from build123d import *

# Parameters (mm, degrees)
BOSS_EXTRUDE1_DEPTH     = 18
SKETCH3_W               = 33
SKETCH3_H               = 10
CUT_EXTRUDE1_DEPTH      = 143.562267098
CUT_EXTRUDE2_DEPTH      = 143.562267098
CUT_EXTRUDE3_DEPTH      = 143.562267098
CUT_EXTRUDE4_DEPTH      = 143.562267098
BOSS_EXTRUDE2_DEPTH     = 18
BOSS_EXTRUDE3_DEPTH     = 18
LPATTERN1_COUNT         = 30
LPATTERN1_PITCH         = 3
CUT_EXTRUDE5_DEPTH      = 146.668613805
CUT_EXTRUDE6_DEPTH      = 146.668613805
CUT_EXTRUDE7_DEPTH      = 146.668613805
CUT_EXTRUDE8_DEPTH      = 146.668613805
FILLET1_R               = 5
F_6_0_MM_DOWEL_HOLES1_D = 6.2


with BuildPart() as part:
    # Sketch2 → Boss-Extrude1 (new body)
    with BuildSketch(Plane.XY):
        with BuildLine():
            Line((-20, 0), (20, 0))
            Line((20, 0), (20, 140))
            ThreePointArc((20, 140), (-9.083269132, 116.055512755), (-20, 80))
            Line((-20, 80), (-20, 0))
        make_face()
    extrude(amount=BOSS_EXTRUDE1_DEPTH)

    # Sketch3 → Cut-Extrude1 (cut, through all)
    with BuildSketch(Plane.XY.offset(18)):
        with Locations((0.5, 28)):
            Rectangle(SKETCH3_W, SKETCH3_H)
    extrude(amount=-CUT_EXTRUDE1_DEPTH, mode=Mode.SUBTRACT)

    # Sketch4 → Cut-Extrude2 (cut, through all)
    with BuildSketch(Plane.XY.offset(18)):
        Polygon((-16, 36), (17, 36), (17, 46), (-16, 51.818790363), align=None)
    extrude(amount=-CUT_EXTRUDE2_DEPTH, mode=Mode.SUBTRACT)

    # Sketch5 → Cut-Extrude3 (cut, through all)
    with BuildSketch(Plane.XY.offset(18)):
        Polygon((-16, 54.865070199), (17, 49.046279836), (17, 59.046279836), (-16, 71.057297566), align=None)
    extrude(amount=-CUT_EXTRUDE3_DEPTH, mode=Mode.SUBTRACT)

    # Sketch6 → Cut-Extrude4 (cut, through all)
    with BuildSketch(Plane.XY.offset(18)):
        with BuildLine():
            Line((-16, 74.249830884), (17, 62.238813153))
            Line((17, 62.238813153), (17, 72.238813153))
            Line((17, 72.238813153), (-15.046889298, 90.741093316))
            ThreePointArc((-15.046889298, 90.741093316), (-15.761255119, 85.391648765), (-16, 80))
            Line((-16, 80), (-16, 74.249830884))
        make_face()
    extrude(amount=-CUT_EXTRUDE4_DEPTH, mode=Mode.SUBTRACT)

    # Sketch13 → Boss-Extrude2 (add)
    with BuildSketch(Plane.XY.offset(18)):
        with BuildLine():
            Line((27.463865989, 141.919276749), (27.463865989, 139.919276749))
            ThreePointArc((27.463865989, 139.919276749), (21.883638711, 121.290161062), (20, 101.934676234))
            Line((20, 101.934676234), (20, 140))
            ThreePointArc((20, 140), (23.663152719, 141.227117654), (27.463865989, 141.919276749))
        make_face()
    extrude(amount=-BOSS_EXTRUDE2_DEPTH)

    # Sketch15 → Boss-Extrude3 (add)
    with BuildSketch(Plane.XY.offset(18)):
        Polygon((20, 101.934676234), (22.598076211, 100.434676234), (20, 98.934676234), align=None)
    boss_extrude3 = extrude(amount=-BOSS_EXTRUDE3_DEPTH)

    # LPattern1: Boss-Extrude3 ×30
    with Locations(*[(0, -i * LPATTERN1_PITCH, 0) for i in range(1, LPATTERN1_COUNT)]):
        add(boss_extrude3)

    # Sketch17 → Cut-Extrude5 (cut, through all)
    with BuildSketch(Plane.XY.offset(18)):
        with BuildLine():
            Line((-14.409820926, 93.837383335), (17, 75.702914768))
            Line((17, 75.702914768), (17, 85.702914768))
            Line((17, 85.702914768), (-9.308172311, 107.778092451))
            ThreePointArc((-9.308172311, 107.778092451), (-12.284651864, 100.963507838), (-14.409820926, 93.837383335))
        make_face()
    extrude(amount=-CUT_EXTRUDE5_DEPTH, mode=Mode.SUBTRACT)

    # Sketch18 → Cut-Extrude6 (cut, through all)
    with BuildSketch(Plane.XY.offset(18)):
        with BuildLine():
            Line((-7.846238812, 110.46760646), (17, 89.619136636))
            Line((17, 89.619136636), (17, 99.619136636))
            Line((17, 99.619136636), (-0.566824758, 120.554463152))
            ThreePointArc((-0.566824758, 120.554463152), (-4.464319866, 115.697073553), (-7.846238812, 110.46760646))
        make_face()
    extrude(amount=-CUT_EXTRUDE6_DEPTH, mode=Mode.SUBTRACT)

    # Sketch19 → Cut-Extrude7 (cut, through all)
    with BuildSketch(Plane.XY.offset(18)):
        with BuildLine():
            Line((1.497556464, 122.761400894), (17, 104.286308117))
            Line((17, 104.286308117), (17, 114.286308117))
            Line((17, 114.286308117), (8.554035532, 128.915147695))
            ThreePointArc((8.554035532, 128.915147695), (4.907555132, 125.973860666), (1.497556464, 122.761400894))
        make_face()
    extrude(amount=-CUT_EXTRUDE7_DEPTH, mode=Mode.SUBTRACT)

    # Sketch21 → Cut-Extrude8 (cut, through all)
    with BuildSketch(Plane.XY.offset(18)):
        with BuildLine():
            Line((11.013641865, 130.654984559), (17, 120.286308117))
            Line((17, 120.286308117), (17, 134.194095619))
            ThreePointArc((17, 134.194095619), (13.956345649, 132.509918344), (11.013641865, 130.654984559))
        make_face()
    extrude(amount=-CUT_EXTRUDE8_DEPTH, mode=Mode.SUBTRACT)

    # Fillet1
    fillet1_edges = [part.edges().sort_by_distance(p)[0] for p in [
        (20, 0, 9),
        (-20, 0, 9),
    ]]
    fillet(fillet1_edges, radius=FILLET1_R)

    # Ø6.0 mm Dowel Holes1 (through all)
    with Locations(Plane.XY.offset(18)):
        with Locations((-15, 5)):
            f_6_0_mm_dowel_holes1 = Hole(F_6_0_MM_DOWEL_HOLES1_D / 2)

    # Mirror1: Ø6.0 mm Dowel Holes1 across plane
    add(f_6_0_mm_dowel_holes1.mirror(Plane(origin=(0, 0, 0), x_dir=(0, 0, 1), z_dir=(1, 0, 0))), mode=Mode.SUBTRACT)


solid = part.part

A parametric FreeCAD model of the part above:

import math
import FreeCAD as App
import Part
import Sketcher
Q = App.Units.Quantity


def edges_at(feature, points):
    """Names of the edges that pass closest to the given points."""
    edges = feature.Shape.Edges
    near = lambda p: min(range(len(edges)), key=lambda i: edges[i].distToShape(Part.Vertex(*p))[0])
    return sorted({f"Edge{near(p) + 1}" for p in points})

doc = App.newDocument("Part")
body = doc.addObject("PartDesign::Body", "Body")

# Sketch on XY plane
sketch1 = body.newObject("Sketcher::SketchObject", "Sketch")
sketch1.AttachmentSupport = (doc.getObject("XY_Plane"), [""])
sketch1.MapMode = "FlatFace"
sketch1.addGeometry(Part.LineSegment(App.Vector(-20, 0, 0), App.Vector(20, 0, 0)), False)
sketch1.addGeometry(Part.LineSegment(App.Vector(20, 0, 0), App.Vector(20, 140, 0)), False)
sketch1.addGeometry(Part.ArcOfCircle(Part.Circle(App.Vector(45, 80, 0), App.Vector(0, 0, 1), 65), math.radians(112.619865), math.radians(180)), False)
sketch1.addGeometry(Part.LineSegment(App.Vector(-20, 80, 0), App.Vector(-20, 0, 0)), False)
sketch1.addConstraint(Sketcher.Constraint("Coincident", 0, 2, 1, 1))
sketch1.addConstraint(Sketcher.Constraint("Coincident", 1, 2, 2, 1))
sketch1.addConstraint(Sketcher.Constraint("Tangent", 2, 2, 3, 1))
sketch1.addConstraint(Sketcher.Constraint("Coincident", 3, 2, 0, 1))
sketch1.addConstraint(Sketcher.Constraint("Horizontal", 0))
sketch1.addConstraint(Sketcher.Constraint("Vertical", 1))
sketch1.addConstraint(Sketcher.Constraint("Vertical", 3))
sketch1.addConstraint(Sketcher.Constraint("Symmetric", 0, 2, 3, 2, -1, 1))
sketch1.addConstraint(Sketcher.Constraint("Radius", 2, Q("65 mm")))
sketch1.addConstraint(Sketcher.Constraint("DistanceX", 0, 1, 0, 2, Q("40 mm")))
sketch1.addConstraint(Sketcher.Constraint("DistanceY", 1, 1, 1, 2, Q("140 mm")))
pad1 = body.newObject("PartDesign::Pad", "Pad")
pad1.Profile = sketch1
pad1.Length = 18

# Sketch on XY plane
sketch2 = body.newObject("Sketcher::SketchObject", "Sketch001")
sketch2.AttachmentSupport = (doc.getObject("XY_Plane"), [""])
sketch2.MapMode = "FlatFace"
sketch2.AttachmentOffset = App.Placement(App.Vector(0, 0, 18), App.Rotation())
sketch2.addGeometry(Part.LineSegment(App.Vector(-16, 33, 0), App.Vector(-16, 23, 0)), False)
sketch2.addGeometry(Part.LineSegment(App.Vector(-16, 23, 0), App.Vector(17, 23, 0)), False)
sketch2.addGeometry(Part.LineSegment(App.Vector(17, 23, 0), App.Vector(17, 33, 0)), False)
sketch2.addGeometry(Part.LineSegment(App.Vector(17, 33, 0), App.Vector(-16, 33, 0)), False)
sketch2.addConstraint(Sketcher.Constraint("Coincident", 0, 2, 1, 1))
sketch2.addConstraint(Sketcher.Constraint("Coincident", 1, 2, 2, 1))
sketch2.addConstraint(Sketcher.Constraint("Coincident", 2, 2, 3, 1))
sketch2.addConstraint(Sketcher.Constraint("Coincident", 3, 2, 0, 1))
sketch2.addConstraint(Sketcher.Constraint("Vertical", 0))
sketch2.addConstraint(Sketcher.Constraint("Horizontal", 1))
sketch2.addConstraint(Sketcher.Constraint("Vertical", 2))
sketch2.addConstraint(Sketcher.Constraint("Horizontal", 3))
sketch2.addConstraint(Sketcher.Constraint("DistanceX", 1, 1, 1, 2, Q("33 mm")))
sketch2.addConstraint(Sketcher.Constraint("DistanceY", 0, 2, 0, 1, Q("10 mm")))
sketch2.addConstraint(Sketcher.Constraint("DistanceX", 0, 2, -1, 1, Q("16 mm")))
sketch2.addConstraint(Sketcher.Constraint("DistanceY", -1, 1, 0, 2, Q("23 mm")))
pocket1 = body.newObject("PartDesign::Pocket", "Pocket")
pocket1.Profile = sketch2
pocket1.Type = "ThroughAll"

# Sketch on XY plane
sketch3 = body.newObject("Sketcher::SketchObject", "Sketch002")
sketch3.AttachmentSupport = (doc.getObject("XY_Plane"), [""])
sketch3.MapMode = "FlatFace"
sketch3.AttachmentOffset = App.Placement(App.Vector(0, 0, 18), App.Rotation())
sketch3.addGeometry(Part.LineSegment(App.Vector(-16, 36, 0), App.Vector(17, 36, 0)), False)
sketch3.addGeometry(Part.LineSegment(App.Vector(17, 36, 0), App.Vector(17, 46, 0)), False)
sketch3.addGeometry(Part.LineSegment(App.Vector(17, 46, 0), App.Vector(-16, 51.81879, 0)), False)
sketch3.addGeometry(Part.LineSegment(App.Vector(-16, 51.81879, 0), App.Vector(-16, 36, 0)), False)
sketch3.addConstraint(Sketcher.Constraint("Coincident", 0, 2, 1, 1))
sketch3.addConstraint(Sketcher.Constraint("Coincident", 1, 2, 2, 1))
sketch3.addConstraint(Sketcher.Constraint("Coincident", 2, 2, 3, 1))
sketch3.addConstraint(Sketcher.Constraint("Coincident", 3, 2, 0, 1))
sketch3.addConstraint(Sketcher.Constraint("Horizontal", 0))
sketch3.addConstraint(Sketcher.Constraint("Vertical", 1))
sketch3.addConstraint(Sketcher.Constraint("Vertical", 3))
sketch3.addConstraint(Sketcher.Constraint("DistanceX", 0, 1, 0, 2, Q("33 mm")))
sketch3.addConstraint(Sketcher.Constraint("DistanceY", 1, 1, 1, 2, Q("10 mm")))
sketch3.addConstraint(Sketcher.Constraint("Angle", 2, Q("170 deg")))
sketch3.addConstraint(Sketcher.Constraint("DistanceX", -1, 1, 0, 2, Q("17 mm")))
sketch3.addConstraint(Sketcher.Constraint("DistanceY", -1, 1, 0, 2, Q("36 mm")))
pocket2 = body.newObject("PartDesign::Pocket", "Pocket001")
pocket2.Profile = sketch3
pocket2.Type = "ThroughAll"

# Sketch on XY plane
sketch4 = body.newObject("Sketcher::SketchObject", "Sketch003")
sketch4.AttachmentSupport = (doc.getObject("XY_Plane"), [""])
sketch4.MapMode = "FlatFace"
sketch4.AttachmentOffset = App.Placement(App.Vector(0, 0, 18), App.Rotation())
sketch4.addGeometry(Part.LineSegment(App.Vector(-16, 54.86507, 0), App.Vector(17, 49.04628, 0)), False)
sketch4.addGeometry(Part.LineSegment(App.Vector(17, 49.04628, 0), App.Vector(17, 59.04628, 0)), False)
sketch4.addGeometry(Part.LineSegment(App.Vector(17, 59.04628, 0), App.Vector(-16, 71.057298, 0)), False)
sketch4.addGeometry(Part.LineSegment(App.Vector(-16, 71.057298, 0), App.Vector(-16, 54.86507, 0)), False)
sketch4.addConstraint(Sketcher.Constraint("Coincident", 0, 2, 1, 1))
sketch4.addConstraint(Sketcher.Constraint("Coincident", 1, 2, 2, 1))
sketch4.addConstraint(Sketcher.Constraint("Coincident", 2, 2, 3, 1))
sketch4.addConstraint(Sketcher.Constraint("Coincident", 3, 2, 0, 1))
sketch4.addConstraint(Sketcher.Constraint("Vertical", 1))
sketch4.addConstraint(Sketcher.Constraint("Vertical", 3))
sketch4.addConstraint(Sketcher.Constraint("DistanceY", 1, 1, 1, 2, Q("10 mm")))
sketch4.addConstraint(Sketcher.Constraint("Angle", 0, Q("-10 deg")))
sketch4.addConstraint(Sketcher.Constraint("Angle", 2, Q("160 deg")))
sketch4.addConstraint(Sketcher.Constraint("DistanceX", -1, 1, 0, 2, Q("17 mm")))
sketch4.addConstraint(Sketcher.Constraint("DistanceX", 2, 2, -1, 1, Q("16 mm")))
sketch4.addConstraint(Sketcher.Constraint("DistanceY", -1, 1, 0, 2, Q("49.04628 mm")))
pocket3 = body.newObject("PartDesign::Pocket", "Pocket002")
pocket3.Profile = sketch4
pocket3.Type = "ThroughAll"

# Sketch on XY plane
sketch5 = body.newObject("Sketcher::SketchObject", "Sketch004")
sketch5.AttachmentSupport = (doc.getObject("XY_Plane"), [""])
sketch5.MapMode = "FlatFace"
sketch5.AttachmentOffset = App.Placement(App.Vector(0, 0, 18), App.Rotation())
sketch5.addGeometry(Part.LineSegment(App.Vector(-16, 74.249831, 0), App.Vector(17, 62.238813, 0)), False)
sketch5.addGeometry(Part.LineSegment(App.Vector(17, 62.238813, 0), App.Vector(17, 72.238813, 0)), False)
sketch5.addGeometry(Part.LineSegment(App.Vector(17, 72.238813, 0), App.Vector(-15.046889, 90.741093, 0)), False)
sketch5.addGeometry(Part.ArcOfCircle(Part.Circle(App.Vector(45, 80, 0), App.Vector(0, 0, 1), 61), math.radians(169.858283), math.radians(180)), False)
sketch5.addGeometry(Part.LineSegment(App.Vector(-16, 80, 0), App.Vector(-16, 74.249831, 0)), False)
sketch5.addConstraint(Sketcher.Constraint("Coincident", 0, 2, 1, 1))
sketch5.addConstraint(Sketcher.Constraint("Coincident", 1, 2, 2, 1))
sketch5.addConstraint(Sketcher.Constraint("Coincident", 2, 2, 3, 1))
sketch5.addConstraint(Sketcher.Constraint("Tangent", 3, 2, 4, 1))
sketch5.addConstraint(Sketcher.Constraint("Coincident", 4, 2, 0, 1))
sketch5.addConstraint(Sketcher.Constraint("Vertical", 1))
sketch5.addConstraint(Sketcher.Constraint("Vertical", 4))
sketch5.addConstraint(Sketcher.Constraint("Radius", 3, Q("61 mm")))
sketch5.addConstraint(Sketcher.Constraint("DistanceY", 1, 1, 1, 2, Q("10 mm")))
sketch5.addConstraint(Sketcher.Constraint("Angle", 0, Q("-20 deg")))
sketch5.addConstraint(Sketcher.Constraint("Angle", 2, Q("150 deg")))
sketch5.addConstraint(Sketcher.Constraint("DistanceX", -1, 1, 3, 3, Q("45 mm")))
sketch5.addConstraint(Sketcher.Constraint("DistanceY", -1, 1, 3, 3, Q("80 mm")))
sketch5.addConstraint(Sketcher.Constraint("DistanceX", -1, 1, 0, 2, Q("17 mm")))
sketch5.addConstraint(Sketcher.Constraint("DistanceY", 4, 2, 4, 1, Q("5.750169 mm")))
pocket4 = body.newObject("PartDesign::Pocket", "Pocket003")
pocket4.Profile = sketch5
pocket4.Type = "ThroughAll"

# Sketch on XY plane
sketch6 = body.newObject("Sketcher::SketchObject", "Sketch005")
sketch6.AttachmentSupport = (doc.getObject("XY_Plane"), [""])
sketch6.MapMode = "FlatFace"
sketch6.AttachmentOffset = App.Placement(App.Vector(0, 0, 18), App.Rotation())
sketch6.addGeometry(Part.LineSegment(App.Vector(27.463866, 139.919277, 0), App.Vector(27.463866, 141.919277, 0)), False)
sketch6.addGeometry(Part.ArcOfCircle(Part.Circle(App.Vector(30.392092, 115.05898, 0), App.Vector(0, 0, 1), 27.019438), math.radians(96.221637), math.radians(112.619865)), False)
sketch6.addGeometry(Part.LineSegment(App.Vector(20, 140, 0), App.Vector(20, 101.934676, 0)), False)
sketch6.addGeometry(Part.ArcOfCircle(Part.Circle(App.Vector(120.386259, 101.934676, 0), App.Vector(0, 0, 1), 100.386259), math.radians(157.766352), math.radians(180)), False)
sketch6.addConstraint(Sketcher.Constraint("Coincident", 0, 2, 1, 1))
sketch6.addConstraint(Sketcher.Constraint("Coincident", 1, 2, 2, 1))
sketch6.addConstraint(Sketcher.Constraint("Tangent", 2, 2, 3, 2))
sketch6.addConstraint(Sketcher.Constraint("Coincident", 3, 1, 0, 1))
sketch6.addConstraint(Sketcher.Constraint("Vertical", 0))
sketch6.addConstraint(Sketcher.Constraint("Vertical", 2))
sketch6.addConstraint(Sketcher.Constraint("DistanceY", 0, 1, 0, 2, Q("2 mm")))
sketch6.addConstraint(Sketcher.Constraint("DistanceX", -1, 1, 1, 2, Q("20 mm")))
sketch6.addConstraint(Sketcher.Constraint("DistanceY", -1, 1, 1, 2, Q("140 mm")))
sketch6.addConstraint(Sketcher.Constraint("Radius", 3, Q("100.386259 mm")))
sketch6.addConstraint(Sketcher.Constraint("Radius", 1, Q("27.019438 mm")))
sketch6.addConstraint(Sketcher.Constraint("DistanceY", 3, 3, 0, 2, Q("39.984601 mm")))
sketch6.addConstraint(Sketcher.Constraint("DistanceY", 2, 2, 2, 1, Q("38.065324 mm")))
pad2 = body.newObject("PartDesign::Pad", "Pad001")
pad2.Profile = sketch6
pad2.Length = 18
pad2.Reversed = True

# Sketch on XY plane
sketch7 = body.newObject("Sketcher::SketchObject", "Sketch006")
sketch7.AttachmentSupport = (doc.getObject("XY_Plane"), [""])
sketch7.MapMode = "FlatFace"
sketch7.AttachmentOffset = App.Placement(App.Vector(0, 0, 18), App.Rotation())
sketch7.addGeometry(Part.LineSegment(App.Vector(22.598076, 100.434676, 0), App.Vector(20, 101.934676, 0)), False)
sketch7.addGeometry(Part.LineSegment(App.Vector(20, 101.934676, 0), App.Vector(20, 98.934676, 0)), False)
sketch7.addGeometry(Part.LineSegment(App.Vector(20, 98.934676, 0), App.Vector(22.598076, 100.434676, 0)), False)
sketch7.addConstraint(Sketcher.Constraint("Coincident", 0, 2, 1, 1))
sketch7.addConstraint(Sketcher.Constraint("Coincident", 1, 2, 2, 1))
sketch7.addConstraint(Sketcher.Constraint("Coincident", 2, 2, 0, 1))
sketch7.addConstraint(Sketcher.Constraint("Vertical", 1))
sketch7.addConstraint(Sketcher.Constraint("Equal", 0, 2))
sketch7.addConstraint(Sketcher.Constraint("DistanceY", 1, 2, 1, 1, Q("3 mm")))
sketch7.addConstraint(Sketcher.Constraint("Angle", 0, Q("150 deg")))
sketch7.addConstraint(Sketcher.Constraint("DistanceX", -1, 1, 0, 2, Q("20 mm")))
sketch7.addConstraint(Sketcher.Constraint("DistanceY", -1, 1, 0, 2, Q("101.934676 mm")))
pad3 = body.newObject("PartDesign::Pad", "Pad002")
pad3.Profile = sketch7
pad3.Length = 18
pad3.Reversed = True
doc.recompute()

linearpattern = body.newObject("PartDesign::LinearPattern", "LinearPattern")
linearpattern.Originals = [pad3]
linearpattern.Direction = (doc.getObject("Y_Axis"), [""])
linearpattern.Mode = "offset"
linearpattern.Offset = 3
linearpattern.Occurrences = 30
linearpattern.Reversed = True
body.Tip = linearpattern

# Sketch on XY plane
sketch8 = body.newObject("Sketcher::SketchObject", "Sketch007")
sketch8.AttachmentSupport = (doc.getObject("XY_Plane"), [""])
sketch8.MapMode = "FlatFace"
sketch8.AttachmentOffset = App.Placement(App.Vector(0, 0, 18), App.Rotation())
sketch8.addGeometry(Part.LineSegment(App.Vector(-14.409821, 93.837383, 0), App.Vector(17, 75.702915, 0)), False)
sketch8.addGeometry(Part.LineSegment(App.Vector(17, 75.702915, 0), App.Vector(17, 85.702915, 0)), False)
sketch8.addGeometry(Part.LineSegment(App.Vector(17, 85.702915, 0), App.Vector(-9.308172, 107.778092, 0)), False)
sketch8.addGeometry(Part.ArcOfCircle(Part.Circle(App.Vector(45, 80, 0), App.Vector(0, 0, 1), 61), math.radians(152.910706), math.radians(166.888761)), False)
sketch8.addConstraint(Sketcher.Constraint("Coincident", 0, 2, 1, 1))
sketch8.addConstraint(Sketcher.Constraint("Coincident", 1, 2, 2, 1))
sketch8.addConstraint(Sketcher.Constraint("Coincident", 2, 2, 3, 1))
sketch8.addConstraint(Sketcher.Constraint("Coincident", 3, 2, 0, 1))
sketch8.addConstraint(Sketcher.Constraint("Vertical", 1))
sketch8.addConstraint(Sketcher.Constraint("Radius", 3, Q("61 mm")))
sketch8.addConstraint(Sketcher.Constraint("DistanceY", 1, 1, 1, 2, Q("10 mm")))
sketch8.addConstraint(Sketcher.Constraint("Angle", 0, Q("-30 deg")))
sketch8.addConstraint(Sketcher.Constraint("Angle", 2, Q("140 deg")))
sketch8.addConstraint(Sketcher.Constraint("DistanceX", -1, 1, 3, 3, Q("45 mm")))
sketch8.addConstraint(Sketcher.Constraint("DistanceY", -1, 1, 3, 3, Q("80 mm")))
sketch8.addConstraint(Sketcher.Constraint("DistanceX", -1, 1, 0, 2, Q("17 mm")))
sketch8.addConstraint(Sketcher.Constraint("Distance", 2, Q("34.34288 mm")))
pocket5 = body.newObject("PartDesign::Pocket", "Pocket004")
pocket5.Profile = sketch8
pocket5.Type = "ThroughAll"

# Sketch on XY plane
sketch9 = body.newObject("Sketcher::SketchObject", "Sketch008")
sketch9.AttachmentSupport = (doc.getObject("XY_Plane"), [""])
sketch9.MapMode = "FlatFace"
sketch9.AttachmentOffset = App.Placement(App.Vector(0, 0, 18), App.Rotation())
sketch9.addGeometry(Part.LineSegment(App.Vector(-7.846239, 110.467606, 0), App.Vector(17, 89.619137, 0)), False)
sketch9.addGeometry(Part.LineSegment(App.Vector(17, 89.619137, 0), App.Vector(17, 99.619137, 0)), False)
sketch9.addGeometry(Part.LineSegment(App.Vector(17, 99.619137, 0), App.Vector(-0.566825, 120.554463, 0)), False)
sketch9.addGeometry(Part.ArcOfCircle(Part.Circle(App.Vector(45, 80, 0), App.Vector(0, 0, 1), 61), math.radians(138.330925), math.radians(150.035127)), False)
sketch9.addConstraint(Sketcher.Constraint("Coincident", 0, 2, 1, 1))
sketch9.addConstraint(Sketcher.Constraint("Coincident", 1, 2, 2, 1))
sketch9.addConstraint(Sketcher.Constraint("Coincident", 2, 2, 3, 1))
sketch9.addConstraint(Sketcher.Constraint("Coincident", 3, 2, 0, 1))
sketch9.addConstraint(Sketcher.Constraint("Vertical", 1))
sketch9.addConstraint(Sketcher.Constraint("Radius", 3, Q("61 mm")))
sketch9.addConstraint(Sketcher.Constraint("DistanceY", 1, 1, 1, 2, Q("10 mm")))
sketch9.addConstraint(Sketcher.Constraint("Angle", 0, Q("-40 deg")))
sketch9.addConstraint(Sketcher.Constraint("Angle", 2, Q("130 deg")))
sketch9.addConstraint(Sketcher.Constraint("DistanceX", -1, 1, 3, 3, Q("45 mm")))
sketch9.addConstraint(Sketcher.Constraint("DistanceY", -1, 1, 3, 3, Q("80 mm")))
sketch9.addConstraint(Sketcher.Constraint("DistanceX", -1, 1, 0, 2, Q("17 mm")))
sketch9.addConstraint(Sketcher.Constraint("Distance", 0, Q("32.434461 mm")))
pocket6 = body.newObject("PartDesign::Pocket", "Pocket005")
pocket6.Profile = sketch9
pocket6.Type = "ThroughAll"

# Sketch on XY plane
sketch10 = body.newObject("Sketcher::SketchObject", "Sketch009")
sketch10.AttachmentSupport = (doc.getObject("XY_Plane"), [""])
sketch10.MapMode = "FlatFace"
sketch10.AttachmentOffset = App.Placement(App.Vector(0, 0, 18), App.Rotation())
sketch10.addGeometry(Part.LineSegment(App.Vector(1.497556, 122.761401, 0), App.Vector(17, 104.286308, 0)), False)
sketch10.addGeometry(Part.LineSegment(App.Vector(17, 104.286308, 0), App.Vector(17, 114.286308, 0)), False)
sketch10.addGeometry(Part.LineSegment(App.Vector(17, 114.286308, 0), App.Vector(8.554036, 128.915148, 0)), False)
sketch10.addGeometry(Part.ArcOfCircle(Part.Circle(App.Vector(45, 80, 0), App.Vector(0, 0, 1), 61), math.radians(126.689259), math.radians(135.492183)), False)
sketch10.addConstraint(Sketcher.Constraint("Coincident", 0, 2, 1, 1))
sketch10.addConstraint(Sketcher.Constraint("Coincident", 1, 2, 2, 1))
sketch10.addConstraint(Sketcher.Constraint("Coincident", 2, 2, 3, 1))
sketch10.addConstraint(Sketcher.Constraint("Coincident", 3, 2, 0, 1))
sketch10.addConstraint(Sketcher.Constraint("Vertical", 1))
sketch10.addConstraint(Sketcher.Constraint("Radius", 3, Q("61 mm")))
sketch10.addConstraint(Sketcher.Constraint("DistanceY", 1, 1, 1, 2, Q("10 mm")))
sketch10.addConstraint(Sketcher.Constraint("Angle", 0, Q("-50 deg")))
sketch10.addConstraint(Sketcher.Constraint("Angle", 2, Q("120 deg")))
sketch10.addConstraint(Sketcher.Constraint("DistanceX", -1, 1, 3, 3, Q("45 mm")))
sketch10.addConstraint(Sketcher.Constraint("DistanceY", -1, 1, 3, 3, Q("80 mm")))
sketch10.addConstraint(Sketcher.Constraint("DistanceX", -1, 1, 0, 2, Q("17 mm")))
sketch10.addConstraint(Sketcher.Constraint("DistanceY", -1, 1, 3, 2, Q("122.761401 mm")))
pocket7 = body.newObject("PartDesign::Pocket", "Pocket006")
pocket7.Profile = sketch10
pocket7.Type = "ThroughAll"

# Sketch on XY plane
sketch11 = body.newObject("Sketcher::SketchObject", "Sketch010")
sketch11.AttachmentSupport = (doc.getObject("XY_Plane"), [""])
sketch11.MapMode = "FlatFace"
sketch11.AttachmentOffset = App.Placement(App.Vector(0, 0, 18), App.Rotation())
sketch11.addGeometry(Part.LineSegment(App.Vector(11.013642, 130.654985, 0), App.Vector(17, 120.286308, 0)), False)
sketch11.addGeometry(Part.LineSegment(App.Vector(17, 120.286308, 0), App.Vector(17, 134.194096, 0)), False)
sketch11.addGeometry(Part.ArcOfCircle(Part.Circle(App.Vector(45, 80, 0), App.Vector(0, 0, 1), 61), math.radians(117.323655), math.radians(123.859165)), False)
sketch11.addConstraint(Sketcher.Constraint("Coincident", 0, 2, 1, 1))
sketch11.addConstraint(Sketcher.Constraint("Coincident", 1, 2, 2, 1))
sketch11.addConstraint(Sketcher.Constraint("Coincident", 2, 2, 0, 1))
sketch11.addConstraint(Sketcher.Constraint("Vertical", 1))
sketch11.addConstraint(Sketcher.Constraint("Radius", 2, Q("61 mm")))
sketch11.addConstraint(Sketcher.Constraint("Angle", 0, Q("-60 deg")))
sketch11.addConstraint(Sketcher.Constraint("DistanceX", -1, 1, 2, 3, Q("45 mm")))
sketch11.addConstraint(Sketcher.Constraint("DistanceY", -1, 1, 2, 3, Q("80 mm")))
sketch11.addConstraint(Sketcher.Constraint("DistanceX", -1, 1, 0, 2, Q("17 mm")))
sketch11.addConstraint(Sketcher.Constraint("DistanceY", 1, 1, 1, 2, Q("13.907788 mm")))
pocket8 = body.newObject("PartDesign::Pocket", "Pocket007")
pocket8.Profile = sketch11
pocket8.Type = "ThroughAll"
doc.recompute()

fillet = body.newObject("PartDesign::Fillet", "Fillet")
fillet.Base = (pocket8, edges_at(pocket8, [(20, 0, 9), (-20, 0, 9)]))
fillet.Radius = 5

# Sketch on XY plane
sketch12 = body.newObject("Sketcher::SketchObject", "Sketch011")
sketch12.AttachmentSupport = (doc.getObject("XY_Plane"), [""])
sketch12.MapMode = "FlatFace"
sketch12.AttachmentOffset = App.Placement(App.Vector(0, 0, 18), App.Rotation())
sketch12.addGeometry(Part.Circle(App.Vector(-15, 5, 0), App.Vector(0, 0, 1), 3.1), False)
sketch12.addConstraint(Sketcher.Constraint("Diameter", 0, Q("6.2 mm")))
sketch12.addConstraint(Sketcher.Constraint("DistanceX", 0, 3, -1, 1, Q("15 mm")))
sketch12.addConstraint(Sketcher.Constraint("DistanceY", -1, 1, 0, 3, Q("5 mm")))
doc.recompute()
hole = body.newObject("PartDesign::Hole", "Hole")
hole.Profile = sketch12
hole.ThreadType = "None"
hole.Diameter = 6.2
hole.DepthType = "ThroughAll"
doc.recompute()

mirrored = body.newObject("PartDesign::Mirrored", "Mirrored")
mirrored.Originals = [hole]
mirrored.MirrorPlane = (doc.getObject("YZ_Plane"), [""])
body.Tip = mirrored

doc.recompute()
